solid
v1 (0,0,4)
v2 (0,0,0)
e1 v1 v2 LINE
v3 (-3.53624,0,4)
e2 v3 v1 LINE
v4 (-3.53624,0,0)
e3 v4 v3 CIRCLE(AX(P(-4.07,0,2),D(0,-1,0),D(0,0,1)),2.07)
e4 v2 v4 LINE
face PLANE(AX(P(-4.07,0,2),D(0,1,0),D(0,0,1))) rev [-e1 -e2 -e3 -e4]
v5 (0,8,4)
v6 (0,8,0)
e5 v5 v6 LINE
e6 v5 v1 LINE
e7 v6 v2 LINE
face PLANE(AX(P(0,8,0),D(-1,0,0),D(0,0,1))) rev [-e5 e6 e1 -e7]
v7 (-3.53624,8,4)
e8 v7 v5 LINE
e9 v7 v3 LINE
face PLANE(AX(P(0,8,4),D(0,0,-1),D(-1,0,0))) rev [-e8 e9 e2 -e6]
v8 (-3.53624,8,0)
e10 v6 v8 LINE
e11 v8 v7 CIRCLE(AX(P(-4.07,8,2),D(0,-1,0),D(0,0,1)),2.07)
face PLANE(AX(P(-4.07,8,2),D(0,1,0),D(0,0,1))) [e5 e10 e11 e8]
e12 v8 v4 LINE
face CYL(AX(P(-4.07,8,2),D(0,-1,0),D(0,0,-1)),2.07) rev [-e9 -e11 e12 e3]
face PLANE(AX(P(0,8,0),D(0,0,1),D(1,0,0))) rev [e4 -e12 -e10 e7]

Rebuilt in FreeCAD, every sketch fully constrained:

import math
import FreeCAD as App
import Part
import Sketcher

V = App.Vector
Q = App.Units.Quantity

doc = App.newDocument("Part")
params = doc.addObject("Spreadsheet::Sheet", "Params")
for row, (alias, value) in enumerate([
    ("sketch1_height", "4 mm"),
    ("sketch1_radius", "2.07 mm"),
    ("pad1_length", "8 mm"),
], start=1):
    params.set(f"A{row}", alias)
    params.set(f"B{row}", "=" + value)
    params.setAlias(f"B{row}", alias)

body = doc.addObject("PartDesign::Body", "Body")

sketch1 = body.newObject("Sketcher::SketchObject", "Sketch")
sketch1.AttachmentSupport = (doc.getObject("XZ_Plane"), [""])
sketch1.MapMode = "FlatFace"
sketch1.addGeometry(Part.LineSegment(V(0, 4, 0), V(0, 0, 0)), False)
sketch1.addGeometry(Part.LineSegment(V(0, 0, 0), V(-3.53624, 0, 0)), False)
sketch1.addGeometry(Part.ArcOfCircle(Part.Circle(V(-4.07, 2, 0), V(0, 0, 1), 2.07), math.radians(-75.057165), math.radians(75.057165)), False)
sketch1.addGeometry(Part.LineSegment(V(-3.53624, 4, 0), V(0, 4, 0)), False)
sketch1.addConstraint(Sketcher.Constraint("Coincident", 0, 2, 1, 1))
sketch1.addConstraint(Sketcher.Constraint("Coincident", 1, 2, 2, 1))
sketch1.addConstraint(Sketcher.Constraint("Coincident", 2, 2, 3, 1))
sketch1.addConstraint(Sketcher.Constraint("Coincident", 3, 2, 0, 1))
sketch1.addConstraint(Sketcher.Constraint("Vertical", 0))
sketch1.addConstraint(Sketcher.Constraint("Horizontal", 1))
sketch1.addConstraint(Sketcher.Constraint("Horizontal", 3))
sketch1.addConstraint(Sketcher.Constraint("Coincident", 0, 2, -1, 1))
sketch1.addConstraint(Sketcher.Constraint("Vertical", 1, 2, 2, 2))
sketch1.addConstraint(Sketcher.Constraint("DistanceY", 0, 2, 0, 1, Q("4 mm")))
sketch1.addConstraint(Sketcher.Constraint("Radius", 2, Q("2.07 mm")))
sketch1.addConstraint(Sketcher.Constraint("DistanceX", 2, 3, -1, 1, Q("4.07 mm")))
sketch1.setExpression("Constraints[9]", "Params.sketch1_height")
sketch1.setExpression("Constraints[10]", "Params.sketch1_radius")
pad1 = body.newObject("PartDesign::Pad", "Pad")
pad1.Profile = sketch1
pad1.setExpression("Length", "Params.pad1_length")
pad1.Reversed = True

doc.recompute()
